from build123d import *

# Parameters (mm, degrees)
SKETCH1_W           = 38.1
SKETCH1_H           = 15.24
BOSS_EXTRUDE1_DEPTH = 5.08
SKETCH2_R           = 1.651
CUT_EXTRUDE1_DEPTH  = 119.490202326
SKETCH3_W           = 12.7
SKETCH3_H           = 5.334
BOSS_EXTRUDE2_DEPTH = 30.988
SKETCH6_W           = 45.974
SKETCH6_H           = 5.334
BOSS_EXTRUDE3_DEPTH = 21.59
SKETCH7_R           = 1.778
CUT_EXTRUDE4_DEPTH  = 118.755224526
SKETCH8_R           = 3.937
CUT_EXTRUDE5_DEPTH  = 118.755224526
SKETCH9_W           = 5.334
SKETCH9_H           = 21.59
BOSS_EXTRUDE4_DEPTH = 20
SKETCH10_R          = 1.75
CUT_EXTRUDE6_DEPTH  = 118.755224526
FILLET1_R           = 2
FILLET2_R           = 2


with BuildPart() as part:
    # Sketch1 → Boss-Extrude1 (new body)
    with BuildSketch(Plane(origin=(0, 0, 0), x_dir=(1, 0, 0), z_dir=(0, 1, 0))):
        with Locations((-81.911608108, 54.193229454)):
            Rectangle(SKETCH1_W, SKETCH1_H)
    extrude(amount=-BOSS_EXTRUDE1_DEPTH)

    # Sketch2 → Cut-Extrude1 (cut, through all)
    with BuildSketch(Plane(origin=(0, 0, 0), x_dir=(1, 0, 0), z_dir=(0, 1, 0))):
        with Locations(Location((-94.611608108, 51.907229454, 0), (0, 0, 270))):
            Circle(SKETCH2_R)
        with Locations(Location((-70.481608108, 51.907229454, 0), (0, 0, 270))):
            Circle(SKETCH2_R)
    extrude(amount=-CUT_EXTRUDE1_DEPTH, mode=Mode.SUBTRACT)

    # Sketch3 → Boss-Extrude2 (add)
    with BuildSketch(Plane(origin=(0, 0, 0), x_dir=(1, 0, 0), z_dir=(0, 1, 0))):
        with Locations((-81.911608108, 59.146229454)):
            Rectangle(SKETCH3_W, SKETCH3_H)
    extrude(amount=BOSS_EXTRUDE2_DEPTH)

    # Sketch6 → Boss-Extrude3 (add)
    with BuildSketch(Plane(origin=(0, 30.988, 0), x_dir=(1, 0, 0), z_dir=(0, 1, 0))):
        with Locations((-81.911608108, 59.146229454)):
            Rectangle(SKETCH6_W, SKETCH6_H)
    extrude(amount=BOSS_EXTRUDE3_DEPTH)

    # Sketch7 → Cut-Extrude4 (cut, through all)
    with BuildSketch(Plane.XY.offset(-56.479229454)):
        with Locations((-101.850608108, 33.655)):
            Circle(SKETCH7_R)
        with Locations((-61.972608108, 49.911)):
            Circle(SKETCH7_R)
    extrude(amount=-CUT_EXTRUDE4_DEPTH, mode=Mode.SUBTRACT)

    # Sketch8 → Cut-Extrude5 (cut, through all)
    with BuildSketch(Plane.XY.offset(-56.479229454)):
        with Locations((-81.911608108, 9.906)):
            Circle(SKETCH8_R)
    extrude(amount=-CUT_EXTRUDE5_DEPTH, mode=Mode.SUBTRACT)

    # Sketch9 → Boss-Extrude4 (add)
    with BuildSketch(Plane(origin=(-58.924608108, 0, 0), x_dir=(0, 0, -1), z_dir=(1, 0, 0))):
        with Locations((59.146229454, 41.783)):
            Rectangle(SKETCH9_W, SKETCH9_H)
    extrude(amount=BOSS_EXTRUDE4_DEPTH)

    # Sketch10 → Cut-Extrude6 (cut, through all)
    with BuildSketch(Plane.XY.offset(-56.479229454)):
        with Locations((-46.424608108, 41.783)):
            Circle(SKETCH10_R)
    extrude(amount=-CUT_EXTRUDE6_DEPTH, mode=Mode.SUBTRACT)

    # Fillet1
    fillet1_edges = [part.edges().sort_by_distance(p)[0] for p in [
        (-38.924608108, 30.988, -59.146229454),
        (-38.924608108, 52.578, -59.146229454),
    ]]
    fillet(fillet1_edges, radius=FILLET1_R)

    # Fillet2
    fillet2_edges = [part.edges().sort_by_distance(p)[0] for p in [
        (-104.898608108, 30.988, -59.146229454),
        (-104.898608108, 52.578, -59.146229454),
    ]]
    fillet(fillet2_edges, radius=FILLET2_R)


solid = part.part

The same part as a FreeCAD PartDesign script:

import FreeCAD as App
import Part
import Sketcher
Q = App.Units.Quantity


def edges_at(feature, points):
    """Names of the edges that pass closest to the given points."""
    edges = feature.Shape.Edges
    near = lambda p: min(range(len(edges)), key=lambda i: edges[i].distToShape(Part.Vertex(*p))[0])
    return sorted({f"Edge{near(p) + 1}" for p in points})


def add_polygon(sketch, points):
    """Adds a closed chain of lines whose ends are joined by coincident constraints."""
    first, n = sketch.GeometryCount, len(points)
    for a, b in zip(points, points[1:] + points[:1]):
        sketch.addGeometry(Part.LineSegment(App.Vector(*a, 0), App.Vector(*b, 0)), False)
    for i in range(n):
        sketch.addConstraint(Sketcher.Constraint("Coincident", first + i, 2, first + (i + 1) % n, 1))

doc = App.newDocument("Part")
params = doc.addObject("Spreadsheet::Sheet", "Params")
for row, (alias, value) in enumerate([
    ("sketch1_width", "1.5 in"),
    ("sketch1_height", "0.6 in"),
    ("pad1_length", "0.2 in"),
    ("sketch2_diameter", "0.13 in"),
    ("sketch3_width", "0.5 in"),
    ("sketch3_height", "0.21 in"),
    ("pad2_length", "1.22 in"),
    ("sketch4_width", "1.81 in"),
    ("sketch4_height", "0.21 in"),
    ("pad3_length", "0.85 in"),
    ("sketch5_diameter", "0.14 in"),
    ("sketch6_diameter", "0.31 in"),
    ("sketch7_width", "0.85 in"),
    ("sketch7_height", "0.21 in"),
    ("pad4_length", "20 mm"),
    ("fillet_radius", "2 mm"),
    ("fillet2_radius", "2 mm"),
], start=1):
    params.set(f"A{row}", alias)
    params.set(f"B{row}", "=" + value)
    params.setAlias(f"B{row}", alias)

body = doc.addObject("PartDesign::Body", "Body")

# Sketch on XZ plane
sketch1 = body.newObject("Sketcher::SketchObject", "Sketch")
sketch1.AttachmentSupport = (doc.getObject("XZ_Plane"), [""])
sketch1.MapMode = "FlatFace"
add_polygon(sketch1, [(-101, -62), (-101, -47), (-63, -47), (-63, -62)])  # lines 0-3
sketch1.addConstraint(Sketcher.Constraint("Vertical", 0))
sketch1.addConstraint(Sketcher.Constraint("Horizontal", 1))
sketch1.addConstraint(Sketcher.Constraint("Vertical", 2))
sketch1.addConstraint(Sketcher.Constraint("Horizontal", 3))
sketch1.addConstraint(Sketcher.Constraint("DistanceX", 1, 1, 1, 2, Q("1.5 in")))
sketch1.addConstraint(Sketcher.Constraint("DistanceY", 0, 1, 0, 2, Q("0.6 in")))
sketch1.addConstraint(Sketcher.Constraint("DistanceX", 0, 2, -1, 1, 100.961608))
sketch1.addConstraint(Sketcher.Constraint("DistanceY", 0, 2, -1, 1, 46.573229))
sketch1.setExpression("Constraints[8]", "Params.sketch1_width")
sketch1.setExpression("Constraints[9]", "Params.sketch1_height")
pad1 = body.newObject("PartDesign::Pad", "Pad")
pad1.Profile = sketch1
pad1.setExpression("Length", "Params.pad1_length")

# Sketch on XZ plane
sketch2 = body.newObject("Sketcher::SketchObject", "Sketch001")
sketch2.AttachmentSupport = (doc.getObject("XZ_Plane"), [""])
sketch2.MapMode = "FlatFace"
sketch2.addGeometry(Part.Circle(App.Vector(-94.6, -51.9, 0), App.Vector(0, 0, 1), 1.7), False)
sketch2.addGeometry(Part.Circle(App.Vector(-70.5, -51.9, 0), App.Vector(0, 0, 1), 1.7), False)
sketch2.addConstraint(Sketcher.Constraint("Equal", 0, 1))
sketch2.addConstraint(Sketcher.Constraint("Horizontal", 0, 3, 1, 3))
sketch2.addConstraint(Sketcher.Constraint("Diameter", 0, Q("0.13 in")))
sketch2.addConstraint(Sketcher.Constraint("DistanceX", 0, 3, 1, 3, Q("0.95 in")))
sketch2.addConstraint(Sketcher.Constraint("DistanceX", 0, 3, -1, 1, 94.611608))
sketch2.addConstraint(Sketcher.Constraint("DistanceY", 0, 3, -1, 1, 51.907229))
sketch2.setExpression("Constraints[2]", "Params.sketch2_diameter")
pocket1 = body.newObject("PartDesign::Pocket", "Pocket")
pocket1.Profile = sketch2
pocket1.Type = "ThroughAll"
pocket1.Reversed = True

# Sketch on XZ plane
sketch3 = body.newObject("Sketcher::SketchObject", "Sketch002")
sketch3.AttachmentSupport = (doc.getObject("XZ_Plane"), [""])
sketch3.MapMode = "FlatFace"
add_polygon(sketch3, [(-88, -62), (-88, -56), (-76, -56), (-76, -62)])  # lines 0-3
sketch3.addConstraint(Sketcher.Constraint("Vertical", 0))
sketch3.addConstraint(Sketcher.Constraint("Horizontal", 1))
sketch3.addConstraint(Sketcher.Constraint("Vertical", 2))
sketch3.addConstraint(Sketcher.Constraint("Horizontal", 3))
sketch3.addConstraint(Sketcher.Constraint("DistanceX", 1, 1, 1, 2, Q("0.5 in")))
sketch3.addConstraint(Sketcher.Constraint("DistanceY", 0, 1, 0, 2, Q("0.21 in")))
sketch3.addConstraint(Sketcher.Constraint("DistanceX", 0, 2, -1, 1, 88.261608))
sketch3.addConstraint(Sketcher.Constraint("DistanceY", 0, 2, -1, 1, 56.479229))
sketch3.setExpression("Constraints[8]", "Params.sketch3_width")
sketch3.setExpression("Constraints[9]", "Params.sketch3_height")
pad2 = body.newObject("PartDesign::Pad", "Pad001")
pad2.Profile = sketch3
pad2.setExpression("Length", "Params.pad2_length")
pad2.Reversed = True

# Sketch on XZ plane
sketch4 = body.newObject("Sketcher::SketchObject", "Sketch003")
sketch4.AttachmentSupport = (doc.getObject("XZ_Plane"), [""])
sketch4.MapMode = "FlatFace"
sketch4.AttachmentOffset = App.Placement(App.Vector(0, 0, -1.22 * 25.4), App.Rotation())
add_polygon(sketch4, [(-105, -62), (-105, -56), (-59, -56), (-59, -62)])  # lines 0-3
sketch4.addConstraint(Sketcher.Constraint("Vertical", 0))
sketch4.addConstraint(Sketcher.Constraint("Horizontal", 1))
sketch4.addConstraint(Sketcher.Constraint("Vertical", 2))
sketch4.addConstraint(Sketcher.Constraint("Horizontal", 3))
sketch4.addConstraint(Sketcher.Constraint("DistanceX", 1, 1, 1, 2, Q("1.81 in")))
sketch4.addConstraint(Sketcher.Constraint("DistanceY", 0, 1, 0, 2, Q("0.21 in")))
sketch4.addConstraint(Sketcher.Constraint("DistanceX", 0, 2, -1, 1, 104.898608))
sketch4.addConstraint(Sketcher.Constraint("DistanceY", 0, 2, -1, 1, 56.479229))
sketch4.setExpression("Constraints[8]", "Params.sketch4_width")
sketch4.setExpression("Constraints[9]", "Params.sketch4_height")
pad3 = body.newObject("PartDesign::Pad", "Pad002")
pad3.Profile = sketch4
pad3.setExpression("Length", "Params.pad3_length")
pad3.Reversed = True

# Sketch on XY plane
sketch5 = body.newObject("Sketcher::SketchObject", "Sketch004")
sketch5.AttachmentSupport = (doc.getObject("XY_Plane"), [""])
sketch5.MapMode = "FlatFace"
sketch5.AttachmentOffset = App.Placement(App.Vector(0, 0, -56.479229), App.Rotation())
sketch5.addGeometry(Part.Circle(App.Vector(-101.9, 33.7, 0), App.Vector(0, 0, 1), 1.8), False)
sketch5.addGeometry(Part.Circle(App.Vector(-62, 49.9, 0), App.Vector(0, 0, 1), 1.8), False)
sketch5.addConstraint(Sketcher.Constraint("Equal", 0, 1))
sketch5.addConstraint(Sketcher.Constraint("Diameter", 0, Q("0.14 in")))
sketch5.addConstraint(Sketcher.Constraint("DistanceX", 0, 3, 1, 3, Q("1.57 in")))
sketch5.addConstraint(Sketcher.Constraint("DistanceY", 0, 3, 1, 3, Q("0.64 in")))
sketch5.addConstraint(Sketcher.Constraint("DistanceY", -1, 1, 0, 3, Q("1.325 in")))
sketch5.addConstraint(Sketcher.Constraint("DistanceX", 0, 3, -1, 1, 101.850608))
sketch5.setExpression("Constraints[1]", "Params.sketch5_diameter")
pocket2 = body.newObject("PartDesign::Pocket", "Pocket001")
pocket2.Profile = sketch5
pocket2.Type = "ThroughAll"

# Sketch on XY plane
sketch6 = body.newObject("Sketcher::SketchObject", "Sketch005")
sketch6.AttachmentSupport = (doc.getObject("XY_Plane"), [""])
sketch6.MapMode = "FlatFace"
sketch6.AttachmentOffset = App.Placement(App.Vector(0, 0, -56.479229), App.Rotation())
sketch6.addGeometry(Part.Circle(App.Vector(-81.9, 9.9, 0), App.Vector(0, 0, 1), 3.9), False)
sketch6.addConstraint(Sketcher.Constraint("Diameter", 0, Q("0.31 in")))
sketch6.addConstraint(Sketcher.Constraint("DistanceY", -1, 1, 0, 3, Q("0.39 in")))
sketch6.addConstraint(Sketcher.Constraint("DistanceX", 0, 3, -1, 1, 81.911608))
sketch6.setExpression("Constraints[0]", "Params.sketch6_diameter")
pocket3 = body.newObject("PartDesign::Pocket", "Pocket002")
pocket3.Profile = sketch6
pocket3.Type = "ThroughAll"

# Sketch on YZ plane
sketch7 = body.newObject("Sketcher::SketchObject", "Sketch006")
sketch7.AttachmentSupport = (doc.getObject("YZ_Plane"), [""])
sketch7.MapMode = "FlatFace"
sketch7.AttachmentOffset = App.Placement(App.Vector(0, 0, -58.924608), App.Rotation())
add_polygon(sketch7, [(53, -56), (31, -56), (31, -62), (53, -62)])  # lines 0-3
sketch7.addConstraint(Sketcher.Constraint("Horizontal", 0))
sketch7.addConstraint(Sketcher.Constraint("Vertical", 1))
sketch7.addConstraint(Sketcher.Constraint("Horizontal", 2))
sketch7.addConstraint(Sketcher.Constraint("Vertical", 3))
sketch7.addConstraint(Sketcher.Constraint("DistanceX", 0, 2, 0, 1, Q("0.85 in")))
sketch7.addConstraint(Sketcher.Constraint("DistanceY", 1, 2, 1, 1, Q("0.21 in")))
sketch7.addConstraint(Sketcher.Constraint("DistanceX", -1, 1, 0, 2, Q("1.22 in")))
sketch7.addConstraint(Sketcher.Constraint("DistanceY", 0, 2, -1, 1, 56.479229))
sketch7.setExpression("Constraints[8]", "Params.sketch7_width")
sketch7.setExpression("Constraints[9]", "Params.sketch7_height")
pad4 = body.newObject("PartDesign::Pad", "Pad003")
pad4.Profile = sketch7
pad4.setExpression("Length", "Params.pad4_length")

# Sketch on XY plane
sketch8 = body.newObject("Sketcher::SketchObject", "Sketch007")
sketch8.AttachmentSupport = (doc.getObject("XY_Plane"), [""])
sketch8.MapMode = "FlatFace"
sketch8.AttachmentOffset = App.Placement(App.Vector(0, 0, -56.479229), App.Rotation())
sketch8.addGeometry(Part.Circle(App.Vector(-46.4, 41.8, 0), App.Vector(0, 0, 1), 1.8), False)
sketch8.addConstraint(Sketcher.Constraint("Diameter", 0, 3.5))
sketch8.addConstraint(Sketcher.Constraint("DistanceY", -1, 1, 0, 3, Q("1.645 in")))
sketch8.addConstraint(Sketcher.Constraint("DistanceX", 0, 3, -1, 1, 46.424608))
pocket4 = body.newObject("PartDesign::Pocket", "Pocket003")
pocket4.Profile = sketch8
pocket4.Type = "ThroughAll"
doc.recompute()

fillet = body.newObject("PartDesign::Fillet", "Fillet")
fillet.Base = (pocket4, edges_at(pocket4, [(-38.925, 30.988, -59.146), (-38.925, 52.578, -59.146)]))
fillet.setExpression("Radius", "Params.fillet_radius")
doc.recompute()

fillet2 = body.newObject("PartDesign::Fillet", "Fillet001")
fillet2.Base = (fillet, edges_at(fillet, [(-104.899, 30.988, -59.146), (-104.899, 52.578, -59.146)]))
fillet2.setExpression("Radius", "Params.fillet2_radius")

doc.recompute()
